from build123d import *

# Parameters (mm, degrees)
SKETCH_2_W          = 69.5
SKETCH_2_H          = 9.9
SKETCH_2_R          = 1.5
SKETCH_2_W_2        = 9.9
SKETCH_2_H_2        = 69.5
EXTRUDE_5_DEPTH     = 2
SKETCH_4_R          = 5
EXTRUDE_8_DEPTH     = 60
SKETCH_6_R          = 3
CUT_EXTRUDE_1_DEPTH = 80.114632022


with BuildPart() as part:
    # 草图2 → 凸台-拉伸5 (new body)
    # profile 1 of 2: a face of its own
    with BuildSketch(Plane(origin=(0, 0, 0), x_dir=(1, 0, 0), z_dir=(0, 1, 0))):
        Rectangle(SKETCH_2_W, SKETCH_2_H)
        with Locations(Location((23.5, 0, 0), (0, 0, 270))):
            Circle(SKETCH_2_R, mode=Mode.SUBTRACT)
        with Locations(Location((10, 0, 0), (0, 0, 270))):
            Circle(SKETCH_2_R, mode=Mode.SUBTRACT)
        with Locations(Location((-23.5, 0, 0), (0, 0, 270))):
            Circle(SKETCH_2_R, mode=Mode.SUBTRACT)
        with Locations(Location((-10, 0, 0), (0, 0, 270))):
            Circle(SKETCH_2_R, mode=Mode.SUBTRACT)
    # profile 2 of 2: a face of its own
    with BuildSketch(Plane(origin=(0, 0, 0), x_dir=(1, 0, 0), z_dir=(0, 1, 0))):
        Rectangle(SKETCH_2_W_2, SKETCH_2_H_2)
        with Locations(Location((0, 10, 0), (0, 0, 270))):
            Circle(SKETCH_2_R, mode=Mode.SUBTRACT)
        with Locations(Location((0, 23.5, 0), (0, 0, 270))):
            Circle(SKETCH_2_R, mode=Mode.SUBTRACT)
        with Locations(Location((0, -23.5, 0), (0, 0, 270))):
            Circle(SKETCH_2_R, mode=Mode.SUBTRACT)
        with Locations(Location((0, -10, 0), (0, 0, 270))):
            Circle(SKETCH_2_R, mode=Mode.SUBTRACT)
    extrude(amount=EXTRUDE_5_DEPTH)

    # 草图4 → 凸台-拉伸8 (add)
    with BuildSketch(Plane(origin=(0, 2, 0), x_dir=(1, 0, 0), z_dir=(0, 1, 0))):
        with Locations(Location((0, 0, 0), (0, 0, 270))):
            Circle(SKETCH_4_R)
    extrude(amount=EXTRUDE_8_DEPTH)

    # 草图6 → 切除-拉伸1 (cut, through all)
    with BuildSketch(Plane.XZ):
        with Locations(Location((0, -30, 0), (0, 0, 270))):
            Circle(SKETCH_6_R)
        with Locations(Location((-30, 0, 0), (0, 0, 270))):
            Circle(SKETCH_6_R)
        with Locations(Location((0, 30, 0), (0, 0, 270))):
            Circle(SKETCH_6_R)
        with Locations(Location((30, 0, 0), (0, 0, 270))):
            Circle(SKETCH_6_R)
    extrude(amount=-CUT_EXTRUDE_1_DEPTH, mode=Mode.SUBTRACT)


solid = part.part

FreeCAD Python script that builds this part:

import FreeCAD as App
import Part
import Sketcher
from FreeCAD import Vector
Q = App.Units.Quantity

doc = App.newDocument("Part")
params = doc.addObject("Spreadsheet::Sheet", "Params")
for row, (alias, value) in enumerate([
    ("sketch1_diameter", "3 mm"),
    ("sketch1_width", "29.8 mm"),
    ("sketch1_width2", "9.9 mm"),
    ("pad1_length", "2 mm"),
    ("sketch2_diameter", "10 mm"),
    ("pad2_length", "60 mm"),
    ("sketch3_diameter", "6 mm"),
], start=1):
    params.set(f"A{row}", alias)
    params.set(f"B{row}", "=" + value)
    params.setAlias(f"B{row}", alias)

body = doc.addObject("PartDesign::Body", "Body")

# Sketch on XZ plane
sketch1 = body.newObject("Sketcher::SketchObject", "Sketch")
sketch1.AttachmentSupport = (doc.getObject("XZ_Plane"), [""])
sketch1.MapMode = "FlatFace"
sketch1.addGeometry([
    Part.LineSegment(Vector(-34.8, -5, 0), Vector(-34.8, 5, 0)),  # 0
    Part.LineSegment(Vector(-34.8, 5, 0), Vector(-5, 5, 0)),  # 1
    Part.LineSegment(Vector(-5, 5, 0), Vector(-5, 34.8, 0)),  # 2
    Part.LineSegment(Vector(-5, 34.8, 0), Vector(5, 34.8, 0)),  # 3
    Part.LineSegment(Vector(5, 34.8, 0), Vector(5, 5, 0)),  # 4
    Part.LineSegment(Vector(5, 5, 0), Vector(34.8, 5, 0)),  # 5
    Part.LineSegment(Vector(34.8, 5, 0), Vector(34.8, -5, 0)),  # 6
    Part.LineSegment(Vector(34.8, -5, 0), Vector(5, -5, 0)),  # 7
    Part.LineSegment(Vector(5, -5, 0), Vector(5, -34.8, 0)),  # 8
    Part.LineSegment(Vector(5, -34.8, 0), Vector(-5, -34.8, 0)),  # 9
    Part.LineSegment(Vector(-5, -34.8, 0), Vector(-5, -5, 0)),  # 10
    Part.LineSegment(Vector(-5, -5, 0), Vector(-34.8, -5, 0)),  # 11
    Part.Circle(Vector(-23.5, 0, 0), Vector(0, 0, 1), 1.5),  # 12
    Part.Circle(Vector(-10, 0, 0), Vector(0, 0, 1), 1.5),  # 13
    Part.Circle(Vector(0, 10, 0), Vector(0, 0, 1), 1.5),  # 14
    Part.Circle(Vector(0, 23.5, 0), Vector(0, 0, 1), 1.5),  # 15
    Part.Circle(Vector(0, -23.5, 0), Vector(0, 0, 1), 1.5),  # 16
    Part.Circle(Vector(0, -10, 0), Vector(0, 0, 1), 1.5),  # 17
    Part.Circle(Vector(23.5, 0, 0), Vector(0, 0, 1), 1.5),  # 18
    Part.Circle(Vector(10, 0, 0), Vector(0, 0, 1), 1.5),  # 19
], False)
sketch1.addConstraint([
    Sketcher.Constraint("Coincident", 0, 2, 1, 1),
    Sketcher.Constraint("Coincident", 1, 2, 2, 1),
    Sketcher.Constraint("Coincident", 2, 2, 3, 1),
    Sketcher.Constraint("Coincident", 3, 2, 4, 1),
    Sketcher.Constraint("Coincident", 4, 2, 5, 1),
    Sketcher.Constraint("Coincident", 5, 2, 6, 1),
    Sketcher.Constraint("Coincident", 6, 2, 7, 1),
    Sketcher.Constraint("Coincident", 7, 2, 8, 1),
    Sketcher.Constraint("Coincident", 8, 2, 9, 1),
    Sketcher.Constraint("Coincident", 9, 2, 10, 1),
    Sketcher.Constraint("Coincident", 10, 2, 11, 1),
    Sketcher.Constraint("Coincident", 11, 2, 0, 1),
    Sketcher.Constraint("Vertical", 0),
    Sketcher.Constraint("Horizontal", 1),
    Sketcher.Constraint("Vertical", 2),
    Sketcher.Constraint("Horizontal", 3),
    Sketcher.Constraint("Vertical", 4),
    Sketcher.Constraint("Horizontal", 5),
    Sketcher.Constraint("Vertical", 6),
    Sketcher.Constraint("Horizontal", 7),
    Sketcher.Constraint("Vertical", 8),
    Sketcher.Constraint("Horizontal", 9),
    Sketcher.Constraint("Vertical", 10),
    Sketcher.Constraint("Horizontal", 11),
    Sketcher.Constraint("Equal", 12, 13),
    Sketcher.Constraint("Equal", 13, 14),
    Sketcher.Constraint("Equal", 14, 15),
    Sketcher.Constraint("Equal", 15, 16),
    Sketcher.Constraint("Equal", 16, 17),
    Sketcher.Constraint("Equal", 17, 18),
    Sketcher.Constraint("Equal", 18, 19),
    Sketcher.Constraint("Symmetric", 15, 3, 16, 3, -1, 1),
    Sketcher.Constraint("Symmetric", 14, 3, 17, 3, -1, 1),
    Sketcher.Constraint("Symmetric", 12, 3, 18, 3, -1, 1),
    Sketcher.Constraint("Symmetric", 13, 3, 19, 3, -1, 1),
    Sketcher.Constraint("Symmetric", 0, 2, 6, 2, -1, 1),
    Sketcher.Constraint("Symmetric", 2, 2, 8, 2, -1, 1),
    Sketcher.Constraint("Symmetric", 4, 2, 10, 2, -1, 1),
    Sketcher.Constraint("Symmetric", 1, 2, 4, 2, -2),
    Sketcher.Constraint("PointOnObject", 12, 3, -1),
    Sketcher.Constraint("PointOnObject", 13, 3, -1),
    Sketcher.Constraint("PointOnObject", 14, 3, -2),
    Sketcher.Constraint("PointOnObject", 15, 3, -2),
    Sketcher.Constraint("Equal", 9, 0),
    Sketcher.Constraint("Equal", 11, 2),
    Sketcher.Constraint("Diameter", 12, Q("3 mm")),
    Sketcher.Constraint("DistanceX", 1, 1, 1, 2, Q("29.8 mm")),
    Sketcher.Constraint("DistanceX", 3, 1, 3, 2, Q("9.9 mm")),
    Sketcher.Constraint("DistanceX", 13, 3, -1, 1, Q("10 mm")),
    Sketcher.Constraint("DistanceY", -1, 1, 14, 3, Q("10 mm")),
    Sketcher.Constraint("DistanceY", 16, 3, 15, 3, Q("47 mm")),
    Sketcher.Constraint("DistanceX", 12, 3, -1, 1, Q("23.5 mm")),
])
sketch1.setExpression("Constraints[45]", "Params.sketch1_diameter")
sketch1.setExpression("Constraints[46]", "Params.sketch1_width")
sketch1.setExpression("Constraints[47]", "Params.sketch1_width2")
pad1 = body.newObject("PartDesign::Pad", "Pad")
pad1.Profile = sketch1
pad1.setExpression("Length", "Params.pad1_length")
pad1.Reversed = True

# Sketch on XZ plane
sketch2 = body.newObject("Sketcher::SketchObject", "Sketch001")
sketch2.AttachmentSupport = (doc.getObject("XZ_Plane"), [""])
sketch2.MapMode = "FlatFace"
sketch2.AttachmentOffset = App.Placement(Vector(0, 0, -2), App.Rotation())
sketch2.addGeometry(Part.Circle(Vector(0, 0, 0), Vector(0, 0, 1), 5), False)
sketch2.addConstraint([
    Sketcher.Constraint("Coincident", 0, 3, -1, 1),
    Sketcher.Constraint("Diameter", 0, Q("10 mm")),
])
sketch2.setExpression("Constraints[1]", "Params.sketch2_diameter")
pad2 = body.newObject("PartDesign::Pad", "Pad001")
pad2.Profile = sketch2
pad2.setExpression("Length", "Params.pad2_length")
pad2.Reversed = True

# Sketch on XZ plane
sketch3 = body.newObject("Sketcher::SketchObject", "Sketch002")
sketch3.AttachmentSupport = (doc.getObject("XZ_Plane"), [""])
sketch3.MapMode = "FlatFace"
sketch3.addGeometry([
    Part.Circle(Vector(0, -30, 0), Vector(0, 0, 1), 3),
    Part.Circle(Vector(-30, 0, 0), Vector(0, 0, 1), 3),
    Part.Circle(Vector(0, 30, 0), Vector(0, 0, 1), 3),
    Part.Circle(Vector(30, 0, 0), Vector(0, 0, 1), 3),
], False)
sketch3.addConstraint([
    Sketcher.Constraint("Equal", 0, 1),
    Sketcher.Constraint("Equal", 1, 2),
    Sketcher.Constraint("Equal", 2, 3),
    Sketcher.Constraint("Symmetric", 0, 3, 2, 3, -1, 1),
    Sketcher.Constraint("Symmetric", 1, 3, 3, 3, -1, 1),
    Sketcher.Constraint("PointOnObject", 0, 3, -2),
    Sketcher.Constraint("PointOnObject", 1, 3, -1),
    Sketcher.Constraint("Diameter", 0, Q("6 mm")),
    Sketcher.Constraint("DistanceY", 0, 3, -1, 1, Q("30 mm")),
    Sketcher.Constraint("DistanceX", 1, 3, -1, 1, Q("30 mm")),
])
sketch3.setExpression("Constraints[7]", "Params.sketch3_diameter")
pocket1 = body.newObject("PartDesign::Pocket", "Pocket")
pocket1.Profile = sketch3
pocket1.Type = "ThroughAll"

doc.recompute()
